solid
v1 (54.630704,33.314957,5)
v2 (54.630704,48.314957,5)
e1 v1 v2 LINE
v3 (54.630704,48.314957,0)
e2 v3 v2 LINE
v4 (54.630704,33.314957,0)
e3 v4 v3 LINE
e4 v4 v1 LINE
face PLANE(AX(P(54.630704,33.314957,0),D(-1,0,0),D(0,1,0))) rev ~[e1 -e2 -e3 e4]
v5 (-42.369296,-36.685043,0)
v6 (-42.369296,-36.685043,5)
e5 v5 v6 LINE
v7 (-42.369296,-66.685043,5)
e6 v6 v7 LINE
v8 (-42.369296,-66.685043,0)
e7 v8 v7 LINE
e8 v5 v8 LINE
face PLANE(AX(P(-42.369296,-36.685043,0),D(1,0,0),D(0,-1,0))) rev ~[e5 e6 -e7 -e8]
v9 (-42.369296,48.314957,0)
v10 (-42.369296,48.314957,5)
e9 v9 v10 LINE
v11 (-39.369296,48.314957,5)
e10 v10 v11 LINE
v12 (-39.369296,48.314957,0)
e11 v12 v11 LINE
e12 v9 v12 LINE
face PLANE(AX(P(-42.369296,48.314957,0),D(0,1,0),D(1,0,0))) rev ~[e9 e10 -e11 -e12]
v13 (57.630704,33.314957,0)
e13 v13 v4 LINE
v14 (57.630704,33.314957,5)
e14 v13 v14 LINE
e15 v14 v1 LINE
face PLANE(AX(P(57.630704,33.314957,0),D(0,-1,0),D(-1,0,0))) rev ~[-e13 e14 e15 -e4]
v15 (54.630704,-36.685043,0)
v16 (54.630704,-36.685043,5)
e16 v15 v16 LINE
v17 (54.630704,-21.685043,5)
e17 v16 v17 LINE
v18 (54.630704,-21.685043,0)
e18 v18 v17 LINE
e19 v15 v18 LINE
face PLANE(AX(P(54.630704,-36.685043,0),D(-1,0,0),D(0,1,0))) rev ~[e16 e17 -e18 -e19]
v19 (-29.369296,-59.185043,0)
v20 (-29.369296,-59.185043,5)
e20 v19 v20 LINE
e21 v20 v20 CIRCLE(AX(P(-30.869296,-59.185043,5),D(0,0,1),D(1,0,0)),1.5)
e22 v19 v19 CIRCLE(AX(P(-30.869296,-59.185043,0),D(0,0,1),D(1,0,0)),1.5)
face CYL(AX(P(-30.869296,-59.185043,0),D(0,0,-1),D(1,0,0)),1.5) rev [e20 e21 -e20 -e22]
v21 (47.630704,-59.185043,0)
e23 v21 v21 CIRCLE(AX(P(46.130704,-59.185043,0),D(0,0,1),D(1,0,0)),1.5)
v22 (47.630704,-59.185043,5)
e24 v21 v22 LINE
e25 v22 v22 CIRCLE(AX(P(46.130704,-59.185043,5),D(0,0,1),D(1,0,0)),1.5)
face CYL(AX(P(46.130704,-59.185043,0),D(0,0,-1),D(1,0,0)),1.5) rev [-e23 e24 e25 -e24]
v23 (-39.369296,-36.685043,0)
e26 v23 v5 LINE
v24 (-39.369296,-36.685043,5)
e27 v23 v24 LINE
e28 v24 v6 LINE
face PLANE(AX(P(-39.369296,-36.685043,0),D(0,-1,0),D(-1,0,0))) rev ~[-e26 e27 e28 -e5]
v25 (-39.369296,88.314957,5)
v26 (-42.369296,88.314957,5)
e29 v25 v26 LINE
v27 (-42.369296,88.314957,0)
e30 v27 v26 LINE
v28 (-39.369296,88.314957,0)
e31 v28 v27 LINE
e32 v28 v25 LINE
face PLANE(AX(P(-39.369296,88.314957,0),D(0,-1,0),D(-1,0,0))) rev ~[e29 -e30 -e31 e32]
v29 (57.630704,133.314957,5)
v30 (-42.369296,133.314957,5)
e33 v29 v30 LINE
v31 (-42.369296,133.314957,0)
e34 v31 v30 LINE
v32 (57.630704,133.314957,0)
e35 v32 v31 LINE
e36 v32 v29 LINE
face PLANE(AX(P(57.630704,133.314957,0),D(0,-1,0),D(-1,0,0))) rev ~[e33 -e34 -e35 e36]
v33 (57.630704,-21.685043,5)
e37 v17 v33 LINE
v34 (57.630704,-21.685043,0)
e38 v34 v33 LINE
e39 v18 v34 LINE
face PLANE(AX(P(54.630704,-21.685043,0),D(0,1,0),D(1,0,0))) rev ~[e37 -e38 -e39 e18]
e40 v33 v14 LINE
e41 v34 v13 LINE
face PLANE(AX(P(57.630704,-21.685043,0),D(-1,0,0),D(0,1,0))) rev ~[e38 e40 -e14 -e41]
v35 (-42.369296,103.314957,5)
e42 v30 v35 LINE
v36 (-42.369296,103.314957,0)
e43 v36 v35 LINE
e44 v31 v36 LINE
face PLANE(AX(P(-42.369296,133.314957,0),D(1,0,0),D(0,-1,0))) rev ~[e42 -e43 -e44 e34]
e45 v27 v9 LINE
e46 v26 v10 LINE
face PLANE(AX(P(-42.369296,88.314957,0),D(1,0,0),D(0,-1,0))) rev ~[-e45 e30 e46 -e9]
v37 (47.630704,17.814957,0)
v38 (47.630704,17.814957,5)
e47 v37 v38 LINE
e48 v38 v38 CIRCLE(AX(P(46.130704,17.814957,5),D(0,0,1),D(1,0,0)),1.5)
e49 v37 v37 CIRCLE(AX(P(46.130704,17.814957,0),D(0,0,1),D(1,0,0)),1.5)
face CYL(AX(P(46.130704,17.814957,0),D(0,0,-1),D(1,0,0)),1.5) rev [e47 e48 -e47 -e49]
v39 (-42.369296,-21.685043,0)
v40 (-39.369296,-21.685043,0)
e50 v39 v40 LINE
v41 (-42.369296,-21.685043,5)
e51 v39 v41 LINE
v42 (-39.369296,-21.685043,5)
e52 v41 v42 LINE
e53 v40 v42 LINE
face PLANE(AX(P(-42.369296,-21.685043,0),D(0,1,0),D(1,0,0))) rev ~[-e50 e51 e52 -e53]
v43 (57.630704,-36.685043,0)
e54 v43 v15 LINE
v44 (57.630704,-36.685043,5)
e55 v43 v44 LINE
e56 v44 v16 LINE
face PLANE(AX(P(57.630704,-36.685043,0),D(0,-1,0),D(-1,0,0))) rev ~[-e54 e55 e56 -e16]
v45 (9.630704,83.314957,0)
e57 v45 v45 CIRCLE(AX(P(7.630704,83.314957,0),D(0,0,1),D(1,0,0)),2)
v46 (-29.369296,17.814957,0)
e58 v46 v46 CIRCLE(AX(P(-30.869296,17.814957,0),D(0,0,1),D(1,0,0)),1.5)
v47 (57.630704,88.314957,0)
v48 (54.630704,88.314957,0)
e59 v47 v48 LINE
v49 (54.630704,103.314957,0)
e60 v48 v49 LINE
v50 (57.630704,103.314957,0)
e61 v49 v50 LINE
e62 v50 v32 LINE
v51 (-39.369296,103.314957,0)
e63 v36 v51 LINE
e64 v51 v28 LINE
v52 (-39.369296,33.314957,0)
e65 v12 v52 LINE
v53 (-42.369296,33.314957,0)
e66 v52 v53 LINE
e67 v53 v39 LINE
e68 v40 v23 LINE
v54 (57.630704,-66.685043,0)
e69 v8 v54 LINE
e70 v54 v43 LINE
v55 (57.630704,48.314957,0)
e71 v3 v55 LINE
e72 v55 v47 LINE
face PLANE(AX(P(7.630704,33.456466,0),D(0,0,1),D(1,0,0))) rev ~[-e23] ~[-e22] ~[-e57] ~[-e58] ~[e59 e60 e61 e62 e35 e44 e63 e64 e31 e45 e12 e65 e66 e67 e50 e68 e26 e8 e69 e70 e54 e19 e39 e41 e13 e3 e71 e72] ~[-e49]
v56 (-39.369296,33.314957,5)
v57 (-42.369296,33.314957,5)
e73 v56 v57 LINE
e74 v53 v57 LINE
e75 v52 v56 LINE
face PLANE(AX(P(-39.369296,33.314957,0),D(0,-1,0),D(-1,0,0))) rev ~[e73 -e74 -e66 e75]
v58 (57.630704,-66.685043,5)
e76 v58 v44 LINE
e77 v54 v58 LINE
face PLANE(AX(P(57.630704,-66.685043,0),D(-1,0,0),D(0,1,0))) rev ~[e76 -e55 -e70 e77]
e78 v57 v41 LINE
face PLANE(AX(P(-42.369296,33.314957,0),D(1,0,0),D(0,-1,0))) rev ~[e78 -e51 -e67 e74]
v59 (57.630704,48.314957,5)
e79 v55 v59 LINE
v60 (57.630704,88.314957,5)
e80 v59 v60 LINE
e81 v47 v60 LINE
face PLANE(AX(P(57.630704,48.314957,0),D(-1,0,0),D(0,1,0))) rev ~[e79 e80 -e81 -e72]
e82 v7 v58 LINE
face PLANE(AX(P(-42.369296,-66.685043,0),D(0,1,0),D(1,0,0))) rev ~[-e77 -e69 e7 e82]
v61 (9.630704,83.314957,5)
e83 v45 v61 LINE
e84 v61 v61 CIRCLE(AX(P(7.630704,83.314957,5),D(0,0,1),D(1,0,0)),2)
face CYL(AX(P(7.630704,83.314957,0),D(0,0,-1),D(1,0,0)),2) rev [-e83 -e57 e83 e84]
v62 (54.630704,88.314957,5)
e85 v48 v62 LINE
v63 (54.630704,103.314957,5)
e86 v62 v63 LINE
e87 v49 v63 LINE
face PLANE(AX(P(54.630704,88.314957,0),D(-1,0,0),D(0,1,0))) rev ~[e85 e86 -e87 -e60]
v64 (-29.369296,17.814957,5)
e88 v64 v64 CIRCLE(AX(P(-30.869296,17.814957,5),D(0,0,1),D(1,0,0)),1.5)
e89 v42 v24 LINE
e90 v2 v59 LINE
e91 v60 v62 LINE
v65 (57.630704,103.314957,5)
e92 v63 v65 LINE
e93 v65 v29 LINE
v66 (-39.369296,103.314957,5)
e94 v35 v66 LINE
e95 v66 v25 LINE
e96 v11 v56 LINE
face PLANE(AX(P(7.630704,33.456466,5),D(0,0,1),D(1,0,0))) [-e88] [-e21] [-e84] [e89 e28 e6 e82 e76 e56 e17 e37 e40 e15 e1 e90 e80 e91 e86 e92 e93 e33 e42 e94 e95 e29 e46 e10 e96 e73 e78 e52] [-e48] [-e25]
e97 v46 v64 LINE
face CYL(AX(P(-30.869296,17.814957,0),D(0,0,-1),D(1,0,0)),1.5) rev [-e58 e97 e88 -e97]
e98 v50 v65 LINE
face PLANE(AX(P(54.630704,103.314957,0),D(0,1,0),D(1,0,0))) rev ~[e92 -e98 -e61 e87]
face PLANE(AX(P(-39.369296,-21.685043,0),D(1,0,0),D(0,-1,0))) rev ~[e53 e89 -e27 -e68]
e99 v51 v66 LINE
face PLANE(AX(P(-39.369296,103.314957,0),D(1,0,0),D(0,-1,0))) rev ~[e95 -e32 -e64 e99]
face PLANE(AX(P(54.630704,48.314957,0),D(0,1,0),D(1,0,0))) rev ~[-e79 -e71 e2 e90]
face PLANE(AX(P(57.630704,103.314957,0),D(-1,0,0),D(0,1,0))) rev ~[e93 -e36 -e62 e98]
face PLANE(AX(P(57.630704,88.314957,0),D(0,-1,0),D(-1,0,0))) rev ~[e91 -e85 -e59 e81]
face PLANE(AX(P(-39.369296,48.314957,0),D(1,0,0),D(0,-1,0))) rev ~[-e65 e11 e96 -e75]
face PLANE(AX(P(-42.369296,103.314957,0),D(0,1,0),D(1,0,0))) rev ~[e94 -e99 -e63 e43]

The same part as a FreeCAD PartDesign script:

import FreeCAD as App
import Part
import Sketcher
from FreeCAD import Vector
Q = App.Units.Quantity


def add_polygon(sketch, points):
    """Adds a closed chain of lines whose ends are joined by coincident constraints."""
    first, n = sketch.GeometryCount, len(points)
    for a, b in zip(points, points[1:] + points[:1]):
        sketch.addGeometry(Part.LineSegment(App.Vector(*a, 0), App.Vector(*b, 0)), False)
    for i in range(n):
        sketch.addConstraint(Sketcher.Constraint("Coincident", first + i, 2, first + (i + 1) % n, 1))

doc = App.newDocument("Part")
body = doc.addObject("PartDesign::Body", "Body")

# Sketch on XY plane
sketch1 = body.newObject("Sketcher::SketchObject", "Sketch")
sketch1.AttachmentSupport = (doc.getObject("XY_Plane"), [""])
sketch1.MapMode = "FlatFace"
add_polygon(sketch1, [(57.630704, 133.314957), (-42.369296, 133.314957), (-42.369296, 103.314957), (-39.369296, 103.314957), (-39.369296, 88.314957), (-42.369296, 88.314957), (-42.369296, 48.314957), (-39.369296, 48.314957), (-39.369296, 33.314957), (-42.369296, 33.314957), (-42.369296, -21.685043), (-39.369296, -21.685043), (-39.369296, -36.685043), (-42.369296, -36.685043), (-42.369296, -66.685043), (57.630704, -66.685043), (57.630704, -36.685043), (54.630704, -36.685043), (54.630704, -21.685043), (57.630704, -21.685043), (57.630704, 33.314957), (54.630704, 33.314957), (54.630704, 48.314957), (57.630704, 48.314957), (57.630704, 88.314957), (54.630704, 88.314957), (54.630704, 103.314957), (57.630704, 103.314957)])  # lines 0-27
sketch1.addGeometry(Part.Circle(Vector(-30.869296, -59.185043, 0), Vector(0, 0, 1), 1.5), False)  # 28
sketch1.addGeometry(Part.Circle(Vector(46.130704, -59.185043, 0), Vector(0, 0, 1), 1.5), False)  # 29
sketch1.addGeometry(Part.Circle(Vector(-30.869296, 17.814957, 0), Vector(0, 0, 1), 1.5), False)  # 30
sketch1.addGeometry(Part.Circle(Vector(46.130704, 17.814957, 0), Vector(0, 0, 1), 1.5), False)  # 31
sketch1.addGeometry(Part.Circle(Vector(7.630704, 83.314957, 0), Vector(0, 0, 1), 2), False)  # 32
sketch1.addConstraint(Sketcher.Constraint("Horizontal", 0))
sketch1.addConstraint(Sketcher.Constraint("Vertical", 1))
sketch1.addConstraint(Sketcher.Constraint("Horizontal", 2))
sketch1.addConstraint(Sketcher.Constraint("Vertical", 3))
sketch1.addConstraint(Sketcher.Constraint("Horizontal", 4))
sketch1.addConstraint(Sketcher.Constraint("Vertical", 5))
sketch1.addConstraint(Sketcher.Constraint("Horizontal", 6))
sketch1.addConstraint(Sketcher.Constraint("Vertical", 7))
sketch1.addConstraint(Sketcher.Constraint("Horizontal", 8))
sketch1.addConstraint(Sketcher.Constraint("Vertical", 9))
sketch1.addConstraint(Sketcher.Constraint("Horizontal", 10))
sketch1.addConstraint(Sketcher.Constraint("Vertical", 11))
sketch1.addConstraint(Sketcher.Constraint("Horizontal", 12))
sketch1.addConstraint(Sketcher.Constraint("Vertical", 13))
sketch1.addConstraint(Sketcher.Constraint("Horizontal", 14))
sketch1.addConstraint(Sketcher.Constraint("Vertical", 15))
sketch1.addConstraint(Sketcher.Constraint("Horizontal", 16))
sketch1.addConstraint(Sketcher.Constraint("Vertical", 17))
sketch1.addConstraint(Sketcher.Constraint("Horizontal", 18))
sketch1.addConstraint(Sketcher.Constraint("Vertical", 19))
sketch1.addConstraint(Sketcher.Constraint("Horizontal", 20))
sketch1.addConstraint(Sketcher.Constraint("Vertical", 21))
sketch1.addConstraint(Sketcher.Constraint("Horizontal", 22))
sketch1.addConstraint(Sketcher.Constraint("Vertical", 23))
sketch1.addConstraint(Sketcher.Constraint("Horizontal", 24))
sketch1.addConstraint(Sketcher.Constraint("Vertical", 25))
sketch1.addConstraint(Sketcher.Constraint("Horizontal", 26))
sketch1.addConstraint(Sketcher.Constraint("Vertical", 27))
sketch1.addConstraint(Sketcher.Constraint("Equal", 28, 29))
sketch1.addConstraint(Sketcher.Constraint("Equal", 29, 30))
sketch1.addConstraint(Sketcher.Constraint("Equal", 30, 31))
sketch1.addConstraint(Sketcher.Constraint("Horizontal", 28, 3, 29, 3))
sketch1.addConstraint(Sketcher.Constraint("Horizontal", 30, 3, 31, 3))
sketch1.addConstraint(Sketcher.Constraint("Horizontal", 12, 2, 15, 2))
sketch1.addConstraint(Sketcher.Constraint("Horizontal", 10, 2, 17, 2))
sketch1.addConstraint(Sketcher.Constraint("Horizontal", 8, 2, 19, 2))
sketch1.addConstraint(Sketcher.Constraint("Horizontal", 6, 2, 21, 2))
sketch1.addConstraint(Sketcher.Constraint("Horizontal", 4, 2, 23, 2))
sketch1.addConstraint(Sketcher.Constraint("Horizontal", 2, 2, 25, 2))
sketch1.addConstraint(Sketcher.Constraint("Vertical", 28, 3, 30, 3))
sketch1.addConstraint(Sketcher.Constraint("Vertical", 29, 3, 31, 3))
sketch1.addConstraint(Sketcher.Constraint("Vertical", 1, 2, 4, 2))
sketch1.addConstraint(Sketcher.Constraint("Vertical", 3, 2, 6, 2))
sketch1.addConstraint(Sketcher.Constraint("Vertical", 5, 2, 8, 2))
sketch1.addConstraint(Sketcher.Constraint("Vertical", 7, 2, 10, 2))
sketch1.addConstraint(Sketcher.Constraint("Vertical", 9, 2, 12, 2))
sketch1.addConstraint(Sketcher.Constraint("Vertical", 15, 2, 18, 2))
sketch1.addConstraint(Sketcher.Constraint("Vertical", 17, 2, 20, 2))
sketch1.addConstraint(Sketcher.Constraint("Vertical", 19, 2, 22, 2))
sketch1.addConstraint(Sketcher.Constraint("Vertical", 21, 2, 24, 2))
sketch1.addConstraint(Sketcher.Constraint("Vertical", 23, 2, 26, 2))
sketch1.addConstraint(Sketcher.Constraint("Equal", 12, 16))
sketch1.addConstraint(Sketcher.Constraint("Equal", 3, 7))
sketch1.addConstraint(Sketcher.Constraint("Equal", 7, 11))
sketch1.addConstraint(Sketcher.Constraint("Equal", 1, 13))
sketch1.addConstraint(Sketcher.Constraint("Diameter", 28, Q("3 mm")))
sketch1.addConstraint(Sketcher.Constraint("Diameter", 32, Q("4 mm")))
sketch1.addConstraint(Sketcher.Constraint("DistanceX", 0, 2, 0, 1, Q("100 mm")))
sketch1.addConstraint(Sketcher.Constraint("DistanceX", 2, 1, 2, 2, Q("3 mm")))
sketch1.addConstraint(Sketcher.Constraint("DistanceY", 1, 2, 1, 1, Q("30 mm")))
sketch1.addConstraint(Sketcher.Constraint("DistanceY", 3, 2, 3, 1, Q("15 mm")))
sketch1.addConstraint(Sketcher.Constraint("DistanceY", 5, 2, 5, 1, Q("40 mm")))
sketch1.addConstraint(Sketcher.Constraint("DistanceY", 9, 2, 9, 1, Q("55 mm")))
sketch1.addConstraint(Sketcher.Constraint("DistanceX", 28, 3, 29, 3, Q("77 mm")))
sketch1.addConstraint(Sketcher.Constraint("DistanceY", 28, 3, 30, 3, Q("77 mm")))
sketch1.addConstraint(Sketcher.Constraint("DistanceX", 0, 2, 32, 3, Q("50 mm")))
sketch1.addConstraint(Sketcher.Constraint("DistanceY", 32, 3, 0, 2, Q("50 mm")))
sketch1.addConstraint(Sketcher.Constraint("DistanceX", 30, 3, 32, 3, Q("38.5 mm")))
sketch1.addConstraint(Sketcher.Constraint("DistanceY", 30, 3, 32, 3, Q("65.5 mm")))
sketch1.addConstraint(Sketcher.Constraint("DistanceX", 28, 3, -1, 1, Q("30.869296 mm")))
sketch1.addConstraint(Sketcher.Constraint("DistanceY", 28, 3, -1, 1, Q("59.185043 mm")))
pad1 = body.newObject("PartDesign::Pad", "Pad")
pad1.Profile = sketch1
pad1.Length = 5

doc.recompute()
